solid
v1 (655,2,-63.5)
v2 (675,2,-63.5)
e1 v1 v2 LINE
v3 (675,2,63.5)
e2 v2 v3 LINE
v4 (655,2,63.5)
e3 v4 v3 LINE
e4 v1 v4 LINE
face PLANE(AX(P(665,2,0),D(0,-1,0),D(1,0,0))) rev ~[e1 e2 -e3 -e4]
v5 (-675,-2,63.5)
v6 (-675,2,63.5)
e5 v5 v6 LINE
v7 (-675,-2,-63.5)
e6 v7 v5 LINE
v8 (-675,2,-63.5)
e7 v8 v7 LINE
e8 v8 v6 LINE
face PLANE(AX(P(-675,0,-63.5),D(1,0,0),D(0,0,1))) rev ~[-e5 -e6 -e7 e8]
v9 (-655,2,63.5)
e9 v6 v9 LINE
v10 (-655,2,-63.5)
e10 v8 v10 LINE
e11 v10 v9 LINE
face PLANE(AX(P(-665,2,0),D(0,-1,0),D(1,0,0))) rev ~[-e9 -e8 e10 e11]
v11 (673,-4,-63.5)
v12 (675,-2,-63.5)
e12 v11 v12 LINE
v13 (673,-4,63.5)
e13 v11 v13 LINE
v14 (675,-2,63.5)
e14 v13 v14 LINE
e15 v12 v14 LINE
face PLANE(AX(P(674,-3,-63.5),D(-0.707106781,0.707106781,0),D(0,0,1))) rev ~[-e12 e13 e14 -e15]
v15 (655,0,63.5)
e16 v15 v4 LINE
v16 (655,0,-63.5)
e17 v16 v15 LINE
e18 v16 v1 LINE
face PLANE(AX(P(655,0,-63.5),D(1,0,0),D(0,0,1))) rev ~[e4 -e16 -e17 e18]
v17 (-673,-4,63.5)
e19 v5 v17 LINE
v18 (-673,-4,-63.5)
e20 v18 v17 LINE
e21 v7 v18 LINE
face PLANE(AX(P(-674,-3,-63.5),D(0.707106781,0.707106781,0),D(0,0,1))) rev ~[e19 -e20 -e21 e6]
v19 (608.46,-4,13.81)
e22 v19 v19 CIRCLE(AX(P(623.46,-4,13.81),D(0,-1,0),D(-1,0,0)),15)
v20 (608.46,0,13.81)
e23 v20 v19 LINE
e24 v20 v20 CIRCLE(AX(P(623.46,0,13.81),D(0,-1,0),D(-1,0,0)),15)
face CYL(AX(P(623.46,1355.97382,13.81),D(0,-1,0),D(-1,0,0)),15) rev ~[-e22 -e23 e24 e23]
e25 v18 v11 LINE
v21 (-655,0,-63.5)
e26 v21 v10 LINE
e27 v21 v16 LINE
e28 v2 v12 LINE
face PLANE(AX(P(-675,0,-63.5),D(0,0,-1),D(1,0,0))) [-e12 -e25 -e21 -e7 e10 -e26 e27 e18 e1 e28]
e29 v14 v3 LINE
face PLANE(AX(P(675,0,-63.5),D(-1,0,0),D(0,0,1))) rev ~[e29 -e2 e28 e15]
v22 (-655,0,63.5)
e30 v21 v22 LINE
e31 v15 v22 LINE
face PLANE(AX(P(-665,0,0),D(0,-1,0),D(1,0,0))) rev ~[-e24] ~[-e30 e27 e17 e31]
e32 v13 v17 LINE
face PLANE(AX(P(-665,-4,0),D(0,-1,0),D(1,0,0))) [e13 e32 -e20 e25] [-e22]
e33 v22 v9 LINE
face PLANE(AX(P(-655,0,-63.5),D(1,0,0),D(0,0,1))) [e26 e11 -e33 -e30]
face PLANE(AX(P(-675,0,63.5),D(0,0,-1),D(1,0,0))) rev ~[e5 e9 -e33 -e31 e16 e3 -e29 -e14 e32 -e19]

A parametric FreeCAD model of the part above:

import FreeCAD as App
import Part
import Sketcher
from FreeCAD import Vector


def edges_at(feature, points):
    """Names of the edges that pass closest to the given points."""
    edges = feature.Shape.Edges
    near = lambda p: min(range(len(edges)), key=lambda i: edges[i].distToShape(Part.Vertex(*p))[0])
    return sorted({f"Edge{near(p) + 1}" for p in points})


def add_polygon(sketch, points):
    """Adds a closed chain of lines whose ends are joined by coincident constraints."""
    first, n = sketch.GeometryCount, len(points)
    for a, b in zip(points, points[1:] + points[:1]):
        sketch.addGeometry(Part.LineSegment(App.Vector(*a, 0), App.Vector(*b, 0)), False)
    for i in range(n):
        sketch.addConstraint(Sketcher.Constraint("Coincident", first + i, 2, first + (i + 1) % n, 1))

doc = App.newDocument("Part")
body = doc.addObject("PartDesign::Body", "Body")

sketch1 = body.newObject("Sketcher::SketchObject", "Sketch")
sketch1.AttachmentSupport = (doc.getObject("XZ_Plane"), [""])
sketch1.MapMode = "FlatFace"
add_polygon(sketch1, [(-675, 63.5), (-675, -63.5), (675, -63.5), (675, 63.5)])
sketch1.addConstraint([
    Sketcher.Constraint("Vertical", 0),
    Sketcher.Constraint("Horizontal", 1),
    Sketcher.Constraint("Vertical", 2),
    Sketcher.Constraint("Horizontal", 3),
    Sketcher.Constraint("Symmetric", 0, 2, 2, 2, -1, 1),
    Sketcher.Constraint("DistanceX", 1, 1, 1, 2, 1350.0),
    Sketcher.Constraint("DistanceY", 0, 2, 0, 1, 127.0),
])
pad1 = body.newObject("PartDesign::Pad", "Pad")
pad1.Profile = sketch1
pad1.Length = 4

sketch2 = body.newObject("Sketcher::SketchObject", "Sketch001")
sketch2.AttachmentSupport = (doc.getObject("XZ_Plane"), [""])
sketch2.MapMode = "FlatFace"
add_polygon(sketch2, [(-675, 63.5), (-675, -63.5), (-655, -63.5), (-655, 63.5)])
add_polygon(sketch2, [(655, 63.5), (655, -63.5), (675, -63.5), (675, 63.5)])
sketch2.addConstraint([
    Sketcher.Constraint("Vertical", 0),
    Sketcher.Constraint("Horizontal", 1),
    Sketcher.Constraint("Vertical", 2),
    Sketcher.Constraint("Horizontal", 3),
    Sketcher.Constraint("Vertical", 4),
    Sketcher.Constraint("Horizontal", 5),
    Sketcher.Constraint("Vertical", 6),
    Sketcher.Constraint("Horizontal", 7),
    Sketcher.Constraint("Symmetric", 2, 2, 4, 2, -1, 1),
    Sketcher.Constraint("Symmetric", 0, 2, 6, 2, -1, 1),
    Sketcher.Constraint("Horizontal", 1, 2, 4, 2),
    Sketcher.Constraint("DistanceX", 1, 1, 1, 2, 20.0),
    Sketcher.Constraint("DistanceY", 0, 2, 0, 1, 127.0),
    Sketcher.Constraint("DistanceX", 0, 2, -1, 1, 675.0),
])
pad2 = body.newObject("PartDesign::Pad", "Pad001")
pad2.Profile = sketch2
pad2.Length = 2
pad2.Reversed = True

sketch3 = body.newObject("Sketcher::SketchObject", "Sketch002")
sketch3.AttachmentSupport = (doc.getObject("XZ_Plane"), [""])
sketch3.MapMode = "FlatFace"
sketch3.addGeometry(Part.Circle(Vector(623.46, 13.81, 0), Vector(0, 0, 1), 15), False)
sketch3.addConstraint([
    Sketcher.Constraint("Diameter", 0, 30.0),
    Sketcher.Constraint("DistanceX", -1, 1, 0, 3, 623.46),
    Sketcher.Constraint("DistanceY", -1, 1, 0, 3, 13.81),
])
doc.recompute()
hole = body.newObject("PartDesign::Hole", "Hole")
hole.Profile = sketch3
hole.ThreadType = "None"
hole.Diameter = 30
hole.DepthType = "ThroughAll"
hole.Reversed = True
doc.recompute()

chamfer = body.newObject("PartDesign::Chamfer", "Chamfer")
chamfer.Base = (hole, edges_at(hole, [(675, -4, 0), (-675, -4, 0)]))
chamfer.Size = 2

doc.recompute()
